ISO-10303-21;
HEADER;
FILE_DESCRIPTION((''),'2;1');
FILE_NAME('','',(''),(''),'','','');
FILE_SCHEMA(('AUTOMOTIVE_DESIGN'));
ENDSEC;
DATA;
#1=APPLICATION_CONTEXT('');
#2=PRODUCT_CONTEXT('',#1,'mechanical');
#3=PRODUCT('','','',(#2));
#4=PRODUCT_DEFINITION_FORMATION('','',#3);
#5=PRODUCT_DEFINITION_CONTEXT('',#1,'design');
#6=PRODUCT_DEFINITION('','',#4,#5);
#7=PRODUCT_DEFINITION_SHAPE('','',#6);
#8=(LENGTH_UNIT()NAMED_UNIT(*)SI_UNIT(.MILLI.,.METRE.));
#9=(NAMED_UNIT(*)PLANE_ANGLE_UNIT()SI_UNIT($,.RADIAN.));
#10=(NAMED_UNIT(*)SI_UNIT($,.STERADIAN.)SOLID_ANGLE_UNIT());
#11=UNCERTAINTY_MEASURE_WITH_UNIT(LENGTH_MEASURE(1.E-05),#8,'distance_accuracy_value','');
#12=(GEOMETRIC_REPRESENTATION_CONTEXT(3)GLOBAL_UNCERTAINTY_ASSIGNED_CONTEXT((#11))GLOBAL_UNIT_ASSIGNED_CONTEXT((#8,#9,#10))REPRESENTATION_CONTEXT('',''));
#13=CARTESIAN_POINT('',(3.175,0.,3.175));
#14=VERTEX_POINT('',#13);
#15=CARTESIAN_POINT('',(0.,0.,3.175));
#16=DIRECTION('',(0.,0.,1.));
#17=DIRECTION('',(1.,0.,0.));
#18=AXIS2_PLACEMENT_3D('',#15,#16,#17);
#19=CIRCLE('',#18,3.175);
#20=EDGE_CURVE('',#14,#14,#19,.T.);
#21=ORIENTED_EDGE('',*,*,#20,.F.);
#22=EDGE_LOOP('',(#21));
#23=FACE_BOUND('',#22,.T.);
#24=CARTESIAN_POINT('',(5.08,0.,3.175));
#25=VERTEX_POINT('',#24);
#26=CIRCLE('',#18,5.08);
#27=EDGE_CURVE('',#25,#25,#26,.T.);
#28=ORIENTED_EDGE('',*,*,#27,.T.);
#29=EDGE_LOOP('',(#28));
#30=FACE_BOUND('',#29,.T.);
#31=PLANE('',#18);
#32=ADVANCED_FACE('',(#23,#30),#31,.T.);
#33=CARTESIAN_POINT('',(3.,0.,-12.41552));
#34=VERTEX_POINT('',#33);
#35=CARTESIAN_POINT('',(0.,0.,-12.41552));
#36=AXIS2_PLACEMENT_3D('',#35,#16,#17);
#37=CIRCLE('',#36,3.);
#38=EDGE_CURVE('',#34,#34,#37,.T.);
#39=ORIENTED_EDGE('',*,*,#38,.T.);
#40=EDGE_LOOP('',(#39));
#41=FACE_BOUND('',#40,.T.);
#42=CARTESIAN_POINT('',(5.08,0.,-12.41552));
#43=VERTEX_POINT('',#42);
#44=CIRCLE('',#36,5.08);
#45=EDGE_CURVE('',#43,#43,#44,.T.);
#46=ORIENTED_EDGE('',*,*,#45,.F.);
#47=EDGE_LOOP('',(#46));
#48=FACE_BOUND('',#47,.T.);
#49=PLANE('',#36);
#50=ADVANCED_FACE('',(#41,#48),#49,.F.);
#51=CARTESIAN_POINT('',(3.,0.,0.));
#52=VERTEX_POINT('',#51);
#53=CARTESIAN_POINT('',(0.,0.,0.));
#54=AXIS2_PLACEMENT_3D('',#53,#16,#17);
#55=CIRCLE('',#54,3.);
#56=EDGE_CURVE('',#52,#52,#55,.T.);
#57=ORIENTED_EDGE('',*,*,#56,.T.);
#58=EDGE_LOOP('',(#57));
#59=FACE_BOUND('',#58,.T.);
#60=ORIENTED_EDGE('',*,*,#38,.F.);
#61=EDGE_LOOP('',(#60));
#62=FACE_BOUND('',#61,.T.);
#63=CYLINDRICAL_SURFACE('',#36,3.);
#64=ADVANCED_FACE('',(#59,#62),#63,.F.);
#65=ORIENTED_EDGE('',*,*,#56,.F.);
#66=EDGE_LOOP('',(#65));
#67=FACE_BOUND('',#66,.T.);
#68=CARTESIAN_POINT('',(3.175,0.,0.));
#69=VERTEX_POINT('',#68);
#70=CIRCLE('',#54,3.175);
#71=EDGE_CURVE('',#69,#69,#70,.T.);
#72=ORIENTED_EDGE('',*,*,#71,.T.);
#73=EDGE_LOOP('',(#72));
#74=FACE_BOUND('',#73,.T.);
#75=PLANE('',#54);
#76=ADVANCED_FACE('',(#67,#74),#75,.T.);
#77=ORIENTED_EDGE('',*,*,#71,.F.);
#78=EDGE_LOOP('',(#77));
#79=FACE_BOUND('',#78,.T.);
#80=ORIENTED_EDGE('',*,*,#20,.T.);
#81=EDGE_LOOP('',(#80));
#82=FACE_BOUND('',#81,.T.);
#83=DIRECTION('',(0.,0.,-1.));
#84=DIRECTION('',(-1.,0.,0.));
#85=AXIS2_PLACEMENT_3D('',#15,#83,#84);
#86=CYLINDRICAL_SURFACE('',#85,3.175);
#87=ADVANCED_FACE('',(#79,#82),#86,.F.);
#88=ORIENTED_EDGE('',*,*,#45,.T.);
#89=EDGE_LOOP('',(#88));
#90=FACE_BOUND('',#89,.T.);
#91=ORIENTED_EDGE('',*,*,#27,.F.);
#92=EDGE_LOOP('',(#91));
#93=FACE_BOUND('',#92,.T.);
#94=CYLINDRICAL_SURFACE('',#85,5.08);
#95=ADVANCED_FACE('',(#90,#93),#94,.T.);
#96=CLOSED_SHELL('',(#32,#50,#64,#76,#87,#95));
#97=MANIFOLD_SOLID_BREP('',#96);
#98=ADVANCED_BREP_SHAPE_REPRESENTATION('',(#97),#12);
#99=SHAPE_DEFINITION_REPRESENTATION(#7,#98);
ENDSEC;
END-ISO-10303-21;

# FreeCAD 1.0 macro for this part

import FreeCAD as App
import Part
import Sketcher
from FreeCAD import Vector
Q = App.Units.Quantity

doc = App.newDocument("Part")
body = doc.addObject("PartDesign::Body", "Body")

# Sketch on XY plane
sketch1 = doc.addObject("Sketcher::SketchObject", "Sketch")
body.addObject(sketch1)
sketch1.AttachmentSupport = (doc.XY_Plane, [""])
sketch1.MapMode = "FlatFace"
sketch1.addGeometry([
    Part.Circle(Vector(0, 0, 0), Vector(0, 0, 1), 5.08),
    Part.Circle(Vector(0, 0, 0), Vector(0, 0, 1), 3.175),
], False)
sketch1.addConstraint([
    Sketcher.Constraint("Coincident", 0, 3, -1, 1),
    Sketcher.Constraint("Coincident", 1, 3, -1, 1),
    Sketcher.Constraint("Diameter", 0, Q("0.4 in")),
    Sketcher.Constraint("Diameter", 1, Q("0.25 in")),
])
pad1 = doc.addObject("PartDesign::Pad", "Pad")
body.addObject(pad1)
pad1.Profile = sketch1
pad1.Length = Q("0.125 in")

# Sketch on XY plane
sketch2 = doc.addObject("Sketcher::SketchObject", "Sketch001")
body.addObject(sketch2)
sketch2.AttachmentSupport = (doc.XY_Plane, [""])
sketch2.MapMode = "FlatFace"
sketch2.AttachmentOffset = App.Placement(Vector(0, 0, -0.4888 * 25.4), App.Rotation())
sketch2.addGeometry([
    Part.Circle(Vector(0, 0, 0), Vector(0, 0, 1), 5.08),
    Part.Circle(Vector(0, 0, 0), Vector(0, 0, 1), 3),
], False)
sketch2.addConstraint([
    Sketcher.Constraint("Coincident", 0, 3, -1, 1),
    Sketcher.Constraint("Coincident", 1, 3, -1, 1),
    Sketcher.Constraint("Diameter", 0, Q("0.4 in")),
    Sketcher.Constraint("Diameter", 1, 6.0),
])
pad2 = doc.addObject("PartDesign::Pad", "Pad001")
body.addObject(pad2)
pad2.Profile = sketch2
pad2.Length = Q("0.4888 in")

doc.recompute()
